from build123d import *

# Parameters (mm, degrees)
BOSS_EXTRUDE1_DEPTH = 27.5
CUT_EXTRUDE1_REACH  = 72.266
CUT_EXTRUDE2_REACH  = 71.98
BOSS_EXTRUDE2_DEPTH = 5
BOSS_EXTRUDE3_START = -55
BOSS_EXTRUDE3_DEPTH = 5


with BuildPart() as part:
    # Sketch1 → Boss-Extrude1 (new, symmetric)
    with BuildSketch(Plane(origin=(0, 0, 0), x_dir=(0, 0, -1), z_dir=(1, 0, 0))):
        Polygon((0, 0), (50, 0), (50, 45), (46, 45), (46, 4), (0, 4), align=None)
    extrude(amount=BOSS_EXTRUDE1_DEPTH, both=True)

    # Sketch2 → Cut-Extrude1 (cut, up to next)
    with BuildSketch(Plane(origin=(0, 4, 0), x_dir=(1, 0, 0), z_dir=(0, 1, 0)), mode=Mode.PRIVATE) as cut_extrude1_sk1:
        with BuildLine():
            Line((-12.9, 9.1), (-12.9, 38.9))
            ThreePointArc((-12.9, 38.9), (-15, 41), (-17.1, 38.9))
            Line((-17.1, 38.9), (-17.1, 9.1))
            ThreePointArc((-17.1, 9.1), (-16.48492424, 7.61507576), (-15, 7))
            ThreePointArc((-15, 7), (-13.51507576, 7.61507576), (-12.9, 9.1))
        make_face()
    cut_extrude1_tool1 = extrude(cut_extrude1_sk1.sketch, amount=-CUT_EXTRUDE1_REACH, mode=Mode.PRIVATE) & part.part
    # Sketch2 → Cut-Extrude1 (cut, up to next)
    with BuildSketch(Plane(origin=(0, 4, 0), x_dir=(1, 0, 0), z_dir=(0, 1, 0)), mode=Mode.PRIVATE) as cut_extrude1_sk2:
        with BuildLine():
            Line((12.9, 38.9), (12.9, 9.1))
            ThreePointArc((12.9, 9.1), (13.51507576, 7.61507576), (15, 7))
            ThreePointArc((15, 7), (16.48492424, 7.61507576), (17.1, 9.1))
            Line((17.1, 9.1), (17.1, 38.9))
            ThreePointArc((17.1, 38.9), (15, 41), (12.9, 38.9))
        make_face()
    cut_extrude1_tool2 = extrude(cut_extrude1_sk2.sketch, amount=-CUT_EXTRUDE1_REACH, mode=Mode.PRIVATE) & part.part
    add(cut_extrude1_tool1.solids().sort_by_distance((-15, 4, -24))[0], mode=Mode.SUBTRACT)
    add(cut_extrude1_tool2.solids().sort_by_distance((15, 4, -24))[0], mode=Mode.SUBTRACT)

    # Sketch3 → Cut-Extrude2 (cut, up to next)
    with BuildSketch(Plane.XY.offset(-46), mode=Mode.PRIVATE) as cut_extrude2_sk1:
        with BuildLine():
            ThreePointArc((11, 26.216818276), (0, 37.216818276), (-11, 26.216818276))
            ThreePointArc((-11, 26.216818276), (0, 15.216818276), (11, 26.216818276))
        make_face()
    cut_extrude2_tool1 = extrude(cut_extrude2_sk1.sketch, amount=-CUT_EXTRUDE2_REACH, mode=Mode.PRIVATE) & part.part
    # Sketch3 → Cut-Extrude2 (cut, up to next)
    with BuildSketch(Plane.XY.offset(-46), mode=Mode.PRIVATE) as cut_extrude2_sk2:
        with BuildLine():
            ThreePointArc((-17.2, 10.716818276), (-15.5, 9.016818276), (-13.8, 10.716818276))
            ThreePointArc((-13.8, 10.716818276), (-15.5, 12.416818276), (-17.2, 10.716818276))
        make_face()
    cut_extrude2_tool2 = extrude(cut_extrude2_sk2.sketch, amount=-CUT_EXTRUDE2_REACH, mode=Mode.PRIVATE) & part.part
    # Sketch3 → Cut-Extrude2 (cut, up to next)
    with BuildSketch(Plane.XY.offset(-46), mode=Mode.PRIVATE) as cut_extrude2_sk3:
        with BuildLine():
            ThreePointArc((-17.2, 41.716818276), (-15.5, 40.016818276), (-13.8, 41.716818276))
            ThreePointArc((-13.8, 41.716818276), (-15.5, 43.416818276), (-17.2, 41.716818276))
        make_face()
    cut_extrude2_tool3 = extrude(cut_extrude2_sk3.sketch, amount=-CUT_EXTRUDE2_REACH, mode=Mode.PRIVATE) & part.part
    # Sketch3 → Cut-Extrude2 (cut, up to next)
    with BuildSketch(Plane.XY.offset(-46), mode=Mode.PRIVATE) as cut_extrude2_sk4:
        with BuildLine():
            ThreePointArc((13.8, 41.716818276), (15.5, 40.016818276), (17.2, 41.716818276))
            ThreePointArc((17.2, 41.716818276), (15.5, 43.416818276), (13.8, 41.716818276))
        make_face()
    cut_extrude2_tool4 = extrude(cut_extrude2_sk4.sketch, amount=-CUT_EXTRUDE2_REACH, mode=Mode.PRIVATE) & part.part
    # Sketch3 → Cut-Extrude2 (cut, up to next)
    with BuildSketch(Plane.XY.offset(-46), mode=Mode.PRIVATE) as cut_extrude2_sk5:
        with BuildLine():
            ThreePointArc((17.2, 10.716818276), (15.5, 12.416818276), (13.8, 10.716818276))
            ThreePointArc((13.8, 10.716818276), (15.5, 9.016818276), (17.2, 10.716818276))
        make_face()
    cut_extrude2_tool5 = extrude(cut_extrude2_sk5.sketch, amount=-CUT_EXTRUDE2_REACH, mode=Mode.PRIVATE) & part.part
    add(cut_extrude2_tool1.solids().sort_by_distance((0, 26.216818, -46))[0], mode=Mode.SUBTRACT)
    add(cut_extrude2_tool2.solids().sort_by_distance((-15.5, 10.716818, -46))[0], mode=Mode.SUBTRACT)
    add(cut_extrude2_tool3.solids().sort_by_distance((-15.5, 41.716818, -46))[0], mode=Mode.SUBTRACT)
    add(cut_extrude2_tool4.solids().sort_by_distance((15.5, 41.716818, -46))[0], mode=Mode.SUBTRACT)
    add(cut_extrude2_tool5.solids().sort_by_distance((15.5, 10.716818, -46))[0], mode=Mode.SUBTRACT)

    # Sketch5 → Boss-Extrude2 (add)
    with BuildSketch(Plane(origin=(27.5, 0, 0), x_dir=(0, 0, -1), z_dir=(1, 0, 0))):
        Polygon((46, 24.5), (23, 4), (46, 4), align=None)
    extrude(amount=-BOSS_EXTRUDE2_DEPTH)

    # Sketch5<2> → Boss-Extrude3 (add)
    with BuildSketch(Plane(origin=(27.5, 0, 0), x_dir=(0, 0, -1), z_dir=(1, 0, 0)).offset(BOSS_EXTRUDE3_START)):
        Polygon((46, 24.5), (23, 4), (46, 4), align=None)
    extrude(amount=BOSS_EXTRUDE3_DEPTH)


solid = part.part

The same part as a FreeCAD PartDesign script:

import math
import FreeCAD as App
import Part
import Sketcher

V = App.Vector
Q = App.Units.Quantity


def add_polygon(sketch, points):
    """Adds a closed chain of lines whose ends are joined by coincident constraints."""
    first, n = sketch.GeometryCount, len(points)
    for a, b in zip(points, points[1:] + points[:1]):
        sketch.addGeometry(Part.LineSegment(App.Vector(*a, 0), App.Vector(*b, 0)), False)
    for i in range(n):
        sketch.addConstraint(Sketcher.Constraint("Coincident", first + i, 2, first + (i + 1) % n, 1))

doc = App.newDocument("Part")
params = doc.addObject("Spreadsheet::Sheet", "Params")
for row, (alias, value) in enumerate([
    ("sketch1_width", "45 mm"),
    ("sketch1_width2", "41 mm"),
    ("sketch1_height", "50 mm"),
    ("pad1_length", "55 mm"),
    ("sketch2_radius", "2.1 mm"),
    ("sketch2_height", "29.8 mm"),
    ("sketch3_radius", "2.1 mm"),
    ("sketch3_height", "29.8 mm"),
    ("sketch4_diameter", "22 mm"),
    ("sketch5_diameter", "3.4 mm"),
    ("sketch6_diameter", "3.4 mm"),
    ("sketch7_diameter", "3.4 mm"),
    ("sketch8_diameter", "3.4 mm"),
    ("sketch9_height", "23 mm"),
    ("sketch9_width", "20.5 mm"),
    ("pad2_length", "5 mm"),
    ("sketch10_height", "23 mm"),
    ("sketch10_width", "20.5 mm"),
    ("pad3_length", "5 mm"),
], start=1):
    params.set(f"A{row}", alias)
    params.set(f"B{row}", "=" + value)
    params.setAlias(f"B{row}", alias)

body = doc.addObject("PartDesign::Body", "Body")

# Sketch on YZ plane
sketch1 = body.newObject("Sketcher::SketchObject", "Sketch")
sketch1.AttachmentSupport = (doc.getObject("YZ_Plane"), [""])
sketch1.MapMode = "FlatFace"
add_polygon(sketch1, [(0, 0), (0, -50), (45, -50), (45, -46), (4, -46), (4, 0)])  # lines 0-5
sketch1.addConstraint([
    Sketcher.Constraint("Vertical", 0),
    Sketcher.Constraint("Horizontal", 1),
    Sketcher.Constraint("Vertical", 2),
    Sketcher.Constraint("Horizontal", 3),
    Sketcher.Constraint("Vertical", 4),
    Sketcher.Constraint("Horizontal", 5),
    Sketcher.Constraint("Coincident", 5, 2, -1, 1),
    Sketcher.Constraint("Equal", 5, 2),
    Sketcher.Constraint("DistanceX", 1, 1, 1, 2, Q("45 mm")),
    Sketcher.Constraint("DistanceX", 3, 2, 3, 1, Q("41 mm")),
    Sketcher.Constraint("DistanceY", 0, 2, 0, 1, Q("50 mm")),
])
sketch1.setExpression("Constraints[14]", "Params.sketch1_width")
sketch1.setExpression("Constraints[15]", "Params.sketch1_width2")
sketch1.setExpression("Constraints[16]", "Params.sketch1_height")
pad1 = body.newObject("PartDesign::Pad", "Pad")
pad1.Profile = sketch1
pad1.setExpression("Length", "Params.pad1_length")
pad1.Midplane = True

# Sketch on XZ plane
sketch2 = body.newObject("Sketcher::SketchObject", "Sketch001")
sketch2.AttachmentSupport = (doc.getObject("XZ_Plane"), [""])
sketch2.MapMode = "FlatFace"
sketch2.AttachmentOffset = App.Placement(V(0, 0, -4), App.Rotation())
sketch2.addGeometry([
    Part.LineSegment(V(-12.9, -9.1, 0), V(-12.9, -38.9, 0)),  # 0
    Part.ArcOfCircle(Part.Circle(V(-15, -38.9, 0), V(0, 0, 1), 2.1), math.radians(180), math.radians(360)),  # 1
    Part.LineSegment(V(-17.1, -38.9, 0), V(-17.1, -9.1, 0)),  # 2
    Part.ArcOfCircle(Part.Circle(V(-15, -9.1, 0), V(0, 0, 1), 2.1), math.radians(90), math.radians(180)),  # 3
    Part.ArcOfCircle(Part.Circle(V(-15, -9.1, 0), V(0, 0, 1), 2.1), math.radians(0), math.radians(90)),  # 4
], False)
sketch2.addConstraint([
    Sketcher.Constraint("Tangent", 0, 2, 1, 2),
    Sketcher.Constraint("Tangent", 1, 1, 2, 1),
    Sketcher.Constraint("Tangent", 2, 2, 3, 2),
    Sketcher.Constraint("Tangent", 3, 1, 4, 2),
    Sketcher.Constraint("Tangent", 4, 1, 0, 1),
    Sketcher.Constraint("Vertical", 0),
    Sketcher.Constraint("Vertical", 2),
    Sketcher.Constraint("Equal", 1, 3),
    Sketcher.Constraint("Vertical", 4, 3, 3, 1),
    Sketcher.Constraint("Radius", 1, Q("2.1 mm")),
    Sketcher.Constraint("DistanceY", 0, 2, 0, 1, Q("29.8 mm")),
    Sketcher.Constraint("DistanceX", 1, 3, -1, 1, Q("15 mm")),
    Sketcher.Constraint("DistanceY", 3, 1, -1, 1, Q("7 mm")),
])
sketch2.setExpression("Constraints[9]", "Params.sketch2_radius")
sketch2.setExpression("Constraints[10]", "Params.sketch2_height")
pocket1 = body.newObject("PartDesign::Pocket", "Pocket")
pocket1.Profile = sketch2
pocket1.Type = "UpToFirst"
pocket1.Reversed = True

# Sketch on XZ plane
sketch3 = body.newObject("Sketcher::SketchObject", "Sketch002")
sketch3.AttachmentSupport = (doc.getObject("XZ_Plane"), [""])
sketch3.MapMode = "FlatFace"
sketch3.AttachmentOffset = App.Placement(V(0, 0, -4), App.Rotation())
sketch3.addGeometry([
    Part.LineSegment(V(12.9, -38.9, 0), V(12.9, -9.1, 0)),  # 0
    Part.ArcOfCircle(Part.Circle(V(15, -9.1, 0), V(0, 0, 1), 2.1), math.radians(90), math.radians(180)),  # 1
    Part.ArcOfCircle(Part.Circle(V(15, -9.1, 0), V(0, 0, 1), 2.1), math.radians(0), math.radians(90)),  # 2
    Part.LineSegment(V(17.1, -9.1, 0), V(17.1, -38.9, 0)),  # 3
    Part.ArcOfCircle(Part.Circle(V(15, -38.9, 0), V(0, 0, 1), 2.1), math.radians(180), math.radians(360)),  # 4
], False)
sketch3.addConstraint([
    Sketcher.Constraint("Tangent", 0, 2, 1, 2),
    Sketcher.Constraint("Tangent", 1, 1, 2, 2),
    Sketcher.Constraint("Tangent", 2, 1, 3, 1),
    Sketcher.Constraint("Tangent", 3, 2, 4, 2),
    Sketcher.Constraint("Tangent", 4, 1, 0, 1),
    Sketcher.Constraint("Vertical", 0),
    Sketcher.Constraint("Vertical", 3),
    Sketcher.Constraint("Equal", 1, 2),
    Sketcher.Constraint("Vertical", 4, 3, 1, 1),
    Sketcher.Constraint("Radius", 1, Q("2.1 mm")),
    Sketcher.Constraint("DistanceY", 0, 1, 0, 2, Q("29.8 mm")),
    Sketcher.Constraint("DistanceX", -1, 1, 1, 3, Q("15 mm")),
    Sketcher.Constraint("DistanceY", 1, 1, -1, 1, Q("7 mm")),
])
sketch3.setExpression("Constraints[9]", "Params.sketch3_radius")
sketch3.setExpression("Constraints[10]", "Params.sketch3_height")
pocket2 = body.newObject("PartDesign::Pocket", "Pocket001")
pocket2.Profile = sketch3
pocket2.Type = "UpToFirst"
pocket2.Reversed = True

# Sketch on XY plane
sketch4 = body.newObject("Sketcher::SketchObject", "Sketch003")
sketch4.AttachmentSupport = (doc.getObject("XY_Plane"), [""])
sketch4.MapMode = "FlatFace"
sketch4.AttachmentOffset = App.Placement(V(0, 0, -46), App.Rotation())
sketch4.addGeometry(Part.Circle(V(0, 26.216818, 0), V(0, 0, 1), 11), False)
sketch4.addConstraint([
    Sketcher.Constraint("PointOnObject", 0, 3, -2),
    Sketcher.Constraint("Diameter", 0, Q("22 mm")),
    Sketcher.Constraint("DistanceY", -1, 1, 0, 3, Q("26.216818 mm")),
])
sketch4.setExpression("Constraints[1]", "Params.sketch4_diameter")
pocket3 = body.newObject("PartDesign::Pocket", "Pocket002")
pocket3.Profile = sketch4
pocket3.Type = "UpToFirst"

# Sketch on XY plane
sketch5 = body.newObject("Sketcher::SketchObject", "Sketch004")
sketch5.AttachmentSupport = (doc.getObject("XY_Plane"), [""])
sketch5.MapMode = "FlatFace"
sketch5.AttachmentOffset = App.Placement(V(0, 0, -46), App.Rotation())
sketch5.addGeometry(Part.Circle(V(-15.5, 10.716818, 0), V(0, 0, 1), 1.7), False)
sketch5.addConstraint([
    Sketcher.Constraint("Diameter", 0, Q("3.4 mm")),
    Sketcher.Constraint("DistanceX", 0, 3, -1, 1, Q("15.5 mm")),
    Sketcher.Constraint("DistanceY", -1, 1, 0, 3, Q("10.716818 mm")),
])
sketch5.setExpression("Constraints[0]", "Params.sketch5_diameter")
pocket4 = body.newObject("PartDesign::Pocket", "Pocket003")
pocket4.Profile = sketch5
pocket4.Type = "UpToFirst"

# Sketch on XY plane
sketch6 = body.newObject("Sketcher::SketchObject", "Sketch005")
sketch6.AttachmentSupport = (doc.getObject("XY_Plane"), [""])
sketch6.MapMode = "FlatFace"
sketch6.AttachmentOffset = App.Placement(V(0, 0, -46), App.Rotation())
sketch6.addGeometry(Part.Circle(V(-15.5, 41.716818, 0), V(0, 0, 1), 1.7), False)
sketch6.addConstraint([
    Sketcher.Constraint("Diameter", 0, Q("3.4 mm")),
    Sketcher.Constraint("DistanceX", 0, 3, -1, 1, Q("15.5 mm")),
    Sketcher.Constraint("DistanceY", -1, 1, 0, 3, Q("41.716818 mm")),
])
sketch6.setExpression("Constraints[0]", "Params.sketch6_diameter")
pocket5 = body.newObject("PartDesign::Pocket", "Pocket004")
pocket5.Profile = sketch6
pocket5.Type = "UpToFirst"

# Sketch on XY plane
sketch7 = body.newObject("Sketcher::SketchObject", "Sketch006")
sketch7.AttachmentSupport = (doc.getObject("XY_Plane"), [""])
sketch7.MapMode = "FlatFace"
sketch7.AttachmentOffset = App.Placement(V(0, 0, -46), App.Rotation())
sketch7.addGeometry(Part.Circle(V(15.5, 41.716818, 0), V(0, 0, 1), 1.7), False)
sketch7.addConstraint([
    Sketcher.Constraint("Diameter", 0, Q("3.4 mm")),
    Sketcher.Constraint("DistanceX", -1, 1, 0, 3, Q("15.5 mm")),
    Sketcher.Constraint("DistanceY", -1, 1, 0, 3, Q("41.716818 mm")),
])
sketch7.setExpression("Constraints[0]", "Params.sketch7_diameter")
pocket6 = body.newObject("PartDesign::Pocket", "Pocket005")
pocket6.Profile = sketch7
pocket6.Type = "UpToFirst"

# Sketch on XY plane
sketch8 = body.newObject("Sketcher::SketchObject", "Sketch007")
sketch8.AttachmentSupport = (doc.getObject("XY_Plane"), [""])
sketch8.MapMode = "FlatFace"
sketch8.AttachmentOffset = App.Placement(V(0, 0, -46), App.Rotation())
sketch8.addGeometry(Part.Circle(V(15.5, 10.716818, 0), V(0, 0, 1), 1.7), False)
sketch8.addConstraint([
    Sketcher.Constraint("Diameter", 0, Q("3.4 mm")),
    Sketcher.Constraint("DistanceX", -1, 1, 0, 3, Q("15.5 mm")),
    Sketcher.Constraint("DistanceY", -1, 1, 0, 3, Q("10.716818 mm")),
])
sketch8.setExpression("Constraints[0]", "Params.sketch8_diameter")
pocket7 = body.newObject("PartDesign::Pocket", "Pocket006")
pocket7.Profile = sketch8
pocket7.Type = "UpToFirst"

# Sketch on YZ plane
sketch9 = body.newObject("Sketcher::SketchObject", "Sketch008")
sketch9.AttachmentSupport = (doc.getObject("YZ_Plane"), [""])
sketch9.MapMode = "FlatFace"
sketch9.AttachmentOffset = App.Placement(V(0, 0, 27.5), App.Rotation())
add_polygon(sketch9, [(24.5, -46), (4, -23), (4, -46)])  # lines 0-2
sketch9.addConstraint([
    Sketcher.Constraint("Vertical", 1),
    Sketcher.Constraint("Horizontal", 2),
    Sketcher.Constraint("DistanceY", 1, 2, 1, 1, Q("23 mm")),
    Sketcher.Constraint("DistanceX", 2, 1, 2, 2, Q("20.5 mm")),
    Sketcher.Constraint("DistanceX", -1, 1, 0, 2, Q("4 mm")),
    Sketcher.Constraint("DistanceY", 0, 2, -1, 1, Q("23 mm")),
])
sketch9.setExpression("Constraints[5]", "Params.sketch9_height")
sketch9.setExpression("Constraints[6]", "Params.sketch9_width")
pad2 = body.newObject("PartDesign::Pad", "Pad001")
pad2.Profile = sketch9
pad2.setExpression("Length", "Params.pad2_length")
pad2.Reversed = True

# Sketch on YZ plane
sketch10 = body.newObject("Sketcher::SketchObject", "Sketch009")
sketch10.AttachmentSupport = (doc.getObject("YZ_Plane"), [""])
sketch10.MapMode = "FlatFace"
sketch10.AttachmentOffset = App.Placement(V(0, 0, -27.5), App.Rotation())
add_polygon(sketch10, [(24.5, -46), (4, -23), (4, -46)])  # lines 0-2
sketch10.addConstraint([
    Sketcher.Constraint("Vertical", 1),
    Sketcher.Constraint("Horizontal", 2),
    Sketcher.Constraint("DistanceY", 1, 2, 1, 1, Q("23 mm")),
    Sketcher.Constraint("DistanceX", 2, 1, 2, 2, Q("20.5 mm")),
    Sketcher.Constraint("DistanceX", -1, 1, 0, 2, Q("4 mm")),
    Sketcher.Constraint("DistanceY", 0, 2, -1, 1, Q("23 mm")),
])
sketch10.setExpression("Constraints[5]", "Params.sketch10_height")
sketch10.setExpression("Constraints[6]", "Params.sketch10_width")
pad3 = body.newObject("PartDesign::Pad", "Pad002")
pad3.Profile = sketch10
pad3.setExpression("Length", "Params.pad3_length")

doc.recompute()
